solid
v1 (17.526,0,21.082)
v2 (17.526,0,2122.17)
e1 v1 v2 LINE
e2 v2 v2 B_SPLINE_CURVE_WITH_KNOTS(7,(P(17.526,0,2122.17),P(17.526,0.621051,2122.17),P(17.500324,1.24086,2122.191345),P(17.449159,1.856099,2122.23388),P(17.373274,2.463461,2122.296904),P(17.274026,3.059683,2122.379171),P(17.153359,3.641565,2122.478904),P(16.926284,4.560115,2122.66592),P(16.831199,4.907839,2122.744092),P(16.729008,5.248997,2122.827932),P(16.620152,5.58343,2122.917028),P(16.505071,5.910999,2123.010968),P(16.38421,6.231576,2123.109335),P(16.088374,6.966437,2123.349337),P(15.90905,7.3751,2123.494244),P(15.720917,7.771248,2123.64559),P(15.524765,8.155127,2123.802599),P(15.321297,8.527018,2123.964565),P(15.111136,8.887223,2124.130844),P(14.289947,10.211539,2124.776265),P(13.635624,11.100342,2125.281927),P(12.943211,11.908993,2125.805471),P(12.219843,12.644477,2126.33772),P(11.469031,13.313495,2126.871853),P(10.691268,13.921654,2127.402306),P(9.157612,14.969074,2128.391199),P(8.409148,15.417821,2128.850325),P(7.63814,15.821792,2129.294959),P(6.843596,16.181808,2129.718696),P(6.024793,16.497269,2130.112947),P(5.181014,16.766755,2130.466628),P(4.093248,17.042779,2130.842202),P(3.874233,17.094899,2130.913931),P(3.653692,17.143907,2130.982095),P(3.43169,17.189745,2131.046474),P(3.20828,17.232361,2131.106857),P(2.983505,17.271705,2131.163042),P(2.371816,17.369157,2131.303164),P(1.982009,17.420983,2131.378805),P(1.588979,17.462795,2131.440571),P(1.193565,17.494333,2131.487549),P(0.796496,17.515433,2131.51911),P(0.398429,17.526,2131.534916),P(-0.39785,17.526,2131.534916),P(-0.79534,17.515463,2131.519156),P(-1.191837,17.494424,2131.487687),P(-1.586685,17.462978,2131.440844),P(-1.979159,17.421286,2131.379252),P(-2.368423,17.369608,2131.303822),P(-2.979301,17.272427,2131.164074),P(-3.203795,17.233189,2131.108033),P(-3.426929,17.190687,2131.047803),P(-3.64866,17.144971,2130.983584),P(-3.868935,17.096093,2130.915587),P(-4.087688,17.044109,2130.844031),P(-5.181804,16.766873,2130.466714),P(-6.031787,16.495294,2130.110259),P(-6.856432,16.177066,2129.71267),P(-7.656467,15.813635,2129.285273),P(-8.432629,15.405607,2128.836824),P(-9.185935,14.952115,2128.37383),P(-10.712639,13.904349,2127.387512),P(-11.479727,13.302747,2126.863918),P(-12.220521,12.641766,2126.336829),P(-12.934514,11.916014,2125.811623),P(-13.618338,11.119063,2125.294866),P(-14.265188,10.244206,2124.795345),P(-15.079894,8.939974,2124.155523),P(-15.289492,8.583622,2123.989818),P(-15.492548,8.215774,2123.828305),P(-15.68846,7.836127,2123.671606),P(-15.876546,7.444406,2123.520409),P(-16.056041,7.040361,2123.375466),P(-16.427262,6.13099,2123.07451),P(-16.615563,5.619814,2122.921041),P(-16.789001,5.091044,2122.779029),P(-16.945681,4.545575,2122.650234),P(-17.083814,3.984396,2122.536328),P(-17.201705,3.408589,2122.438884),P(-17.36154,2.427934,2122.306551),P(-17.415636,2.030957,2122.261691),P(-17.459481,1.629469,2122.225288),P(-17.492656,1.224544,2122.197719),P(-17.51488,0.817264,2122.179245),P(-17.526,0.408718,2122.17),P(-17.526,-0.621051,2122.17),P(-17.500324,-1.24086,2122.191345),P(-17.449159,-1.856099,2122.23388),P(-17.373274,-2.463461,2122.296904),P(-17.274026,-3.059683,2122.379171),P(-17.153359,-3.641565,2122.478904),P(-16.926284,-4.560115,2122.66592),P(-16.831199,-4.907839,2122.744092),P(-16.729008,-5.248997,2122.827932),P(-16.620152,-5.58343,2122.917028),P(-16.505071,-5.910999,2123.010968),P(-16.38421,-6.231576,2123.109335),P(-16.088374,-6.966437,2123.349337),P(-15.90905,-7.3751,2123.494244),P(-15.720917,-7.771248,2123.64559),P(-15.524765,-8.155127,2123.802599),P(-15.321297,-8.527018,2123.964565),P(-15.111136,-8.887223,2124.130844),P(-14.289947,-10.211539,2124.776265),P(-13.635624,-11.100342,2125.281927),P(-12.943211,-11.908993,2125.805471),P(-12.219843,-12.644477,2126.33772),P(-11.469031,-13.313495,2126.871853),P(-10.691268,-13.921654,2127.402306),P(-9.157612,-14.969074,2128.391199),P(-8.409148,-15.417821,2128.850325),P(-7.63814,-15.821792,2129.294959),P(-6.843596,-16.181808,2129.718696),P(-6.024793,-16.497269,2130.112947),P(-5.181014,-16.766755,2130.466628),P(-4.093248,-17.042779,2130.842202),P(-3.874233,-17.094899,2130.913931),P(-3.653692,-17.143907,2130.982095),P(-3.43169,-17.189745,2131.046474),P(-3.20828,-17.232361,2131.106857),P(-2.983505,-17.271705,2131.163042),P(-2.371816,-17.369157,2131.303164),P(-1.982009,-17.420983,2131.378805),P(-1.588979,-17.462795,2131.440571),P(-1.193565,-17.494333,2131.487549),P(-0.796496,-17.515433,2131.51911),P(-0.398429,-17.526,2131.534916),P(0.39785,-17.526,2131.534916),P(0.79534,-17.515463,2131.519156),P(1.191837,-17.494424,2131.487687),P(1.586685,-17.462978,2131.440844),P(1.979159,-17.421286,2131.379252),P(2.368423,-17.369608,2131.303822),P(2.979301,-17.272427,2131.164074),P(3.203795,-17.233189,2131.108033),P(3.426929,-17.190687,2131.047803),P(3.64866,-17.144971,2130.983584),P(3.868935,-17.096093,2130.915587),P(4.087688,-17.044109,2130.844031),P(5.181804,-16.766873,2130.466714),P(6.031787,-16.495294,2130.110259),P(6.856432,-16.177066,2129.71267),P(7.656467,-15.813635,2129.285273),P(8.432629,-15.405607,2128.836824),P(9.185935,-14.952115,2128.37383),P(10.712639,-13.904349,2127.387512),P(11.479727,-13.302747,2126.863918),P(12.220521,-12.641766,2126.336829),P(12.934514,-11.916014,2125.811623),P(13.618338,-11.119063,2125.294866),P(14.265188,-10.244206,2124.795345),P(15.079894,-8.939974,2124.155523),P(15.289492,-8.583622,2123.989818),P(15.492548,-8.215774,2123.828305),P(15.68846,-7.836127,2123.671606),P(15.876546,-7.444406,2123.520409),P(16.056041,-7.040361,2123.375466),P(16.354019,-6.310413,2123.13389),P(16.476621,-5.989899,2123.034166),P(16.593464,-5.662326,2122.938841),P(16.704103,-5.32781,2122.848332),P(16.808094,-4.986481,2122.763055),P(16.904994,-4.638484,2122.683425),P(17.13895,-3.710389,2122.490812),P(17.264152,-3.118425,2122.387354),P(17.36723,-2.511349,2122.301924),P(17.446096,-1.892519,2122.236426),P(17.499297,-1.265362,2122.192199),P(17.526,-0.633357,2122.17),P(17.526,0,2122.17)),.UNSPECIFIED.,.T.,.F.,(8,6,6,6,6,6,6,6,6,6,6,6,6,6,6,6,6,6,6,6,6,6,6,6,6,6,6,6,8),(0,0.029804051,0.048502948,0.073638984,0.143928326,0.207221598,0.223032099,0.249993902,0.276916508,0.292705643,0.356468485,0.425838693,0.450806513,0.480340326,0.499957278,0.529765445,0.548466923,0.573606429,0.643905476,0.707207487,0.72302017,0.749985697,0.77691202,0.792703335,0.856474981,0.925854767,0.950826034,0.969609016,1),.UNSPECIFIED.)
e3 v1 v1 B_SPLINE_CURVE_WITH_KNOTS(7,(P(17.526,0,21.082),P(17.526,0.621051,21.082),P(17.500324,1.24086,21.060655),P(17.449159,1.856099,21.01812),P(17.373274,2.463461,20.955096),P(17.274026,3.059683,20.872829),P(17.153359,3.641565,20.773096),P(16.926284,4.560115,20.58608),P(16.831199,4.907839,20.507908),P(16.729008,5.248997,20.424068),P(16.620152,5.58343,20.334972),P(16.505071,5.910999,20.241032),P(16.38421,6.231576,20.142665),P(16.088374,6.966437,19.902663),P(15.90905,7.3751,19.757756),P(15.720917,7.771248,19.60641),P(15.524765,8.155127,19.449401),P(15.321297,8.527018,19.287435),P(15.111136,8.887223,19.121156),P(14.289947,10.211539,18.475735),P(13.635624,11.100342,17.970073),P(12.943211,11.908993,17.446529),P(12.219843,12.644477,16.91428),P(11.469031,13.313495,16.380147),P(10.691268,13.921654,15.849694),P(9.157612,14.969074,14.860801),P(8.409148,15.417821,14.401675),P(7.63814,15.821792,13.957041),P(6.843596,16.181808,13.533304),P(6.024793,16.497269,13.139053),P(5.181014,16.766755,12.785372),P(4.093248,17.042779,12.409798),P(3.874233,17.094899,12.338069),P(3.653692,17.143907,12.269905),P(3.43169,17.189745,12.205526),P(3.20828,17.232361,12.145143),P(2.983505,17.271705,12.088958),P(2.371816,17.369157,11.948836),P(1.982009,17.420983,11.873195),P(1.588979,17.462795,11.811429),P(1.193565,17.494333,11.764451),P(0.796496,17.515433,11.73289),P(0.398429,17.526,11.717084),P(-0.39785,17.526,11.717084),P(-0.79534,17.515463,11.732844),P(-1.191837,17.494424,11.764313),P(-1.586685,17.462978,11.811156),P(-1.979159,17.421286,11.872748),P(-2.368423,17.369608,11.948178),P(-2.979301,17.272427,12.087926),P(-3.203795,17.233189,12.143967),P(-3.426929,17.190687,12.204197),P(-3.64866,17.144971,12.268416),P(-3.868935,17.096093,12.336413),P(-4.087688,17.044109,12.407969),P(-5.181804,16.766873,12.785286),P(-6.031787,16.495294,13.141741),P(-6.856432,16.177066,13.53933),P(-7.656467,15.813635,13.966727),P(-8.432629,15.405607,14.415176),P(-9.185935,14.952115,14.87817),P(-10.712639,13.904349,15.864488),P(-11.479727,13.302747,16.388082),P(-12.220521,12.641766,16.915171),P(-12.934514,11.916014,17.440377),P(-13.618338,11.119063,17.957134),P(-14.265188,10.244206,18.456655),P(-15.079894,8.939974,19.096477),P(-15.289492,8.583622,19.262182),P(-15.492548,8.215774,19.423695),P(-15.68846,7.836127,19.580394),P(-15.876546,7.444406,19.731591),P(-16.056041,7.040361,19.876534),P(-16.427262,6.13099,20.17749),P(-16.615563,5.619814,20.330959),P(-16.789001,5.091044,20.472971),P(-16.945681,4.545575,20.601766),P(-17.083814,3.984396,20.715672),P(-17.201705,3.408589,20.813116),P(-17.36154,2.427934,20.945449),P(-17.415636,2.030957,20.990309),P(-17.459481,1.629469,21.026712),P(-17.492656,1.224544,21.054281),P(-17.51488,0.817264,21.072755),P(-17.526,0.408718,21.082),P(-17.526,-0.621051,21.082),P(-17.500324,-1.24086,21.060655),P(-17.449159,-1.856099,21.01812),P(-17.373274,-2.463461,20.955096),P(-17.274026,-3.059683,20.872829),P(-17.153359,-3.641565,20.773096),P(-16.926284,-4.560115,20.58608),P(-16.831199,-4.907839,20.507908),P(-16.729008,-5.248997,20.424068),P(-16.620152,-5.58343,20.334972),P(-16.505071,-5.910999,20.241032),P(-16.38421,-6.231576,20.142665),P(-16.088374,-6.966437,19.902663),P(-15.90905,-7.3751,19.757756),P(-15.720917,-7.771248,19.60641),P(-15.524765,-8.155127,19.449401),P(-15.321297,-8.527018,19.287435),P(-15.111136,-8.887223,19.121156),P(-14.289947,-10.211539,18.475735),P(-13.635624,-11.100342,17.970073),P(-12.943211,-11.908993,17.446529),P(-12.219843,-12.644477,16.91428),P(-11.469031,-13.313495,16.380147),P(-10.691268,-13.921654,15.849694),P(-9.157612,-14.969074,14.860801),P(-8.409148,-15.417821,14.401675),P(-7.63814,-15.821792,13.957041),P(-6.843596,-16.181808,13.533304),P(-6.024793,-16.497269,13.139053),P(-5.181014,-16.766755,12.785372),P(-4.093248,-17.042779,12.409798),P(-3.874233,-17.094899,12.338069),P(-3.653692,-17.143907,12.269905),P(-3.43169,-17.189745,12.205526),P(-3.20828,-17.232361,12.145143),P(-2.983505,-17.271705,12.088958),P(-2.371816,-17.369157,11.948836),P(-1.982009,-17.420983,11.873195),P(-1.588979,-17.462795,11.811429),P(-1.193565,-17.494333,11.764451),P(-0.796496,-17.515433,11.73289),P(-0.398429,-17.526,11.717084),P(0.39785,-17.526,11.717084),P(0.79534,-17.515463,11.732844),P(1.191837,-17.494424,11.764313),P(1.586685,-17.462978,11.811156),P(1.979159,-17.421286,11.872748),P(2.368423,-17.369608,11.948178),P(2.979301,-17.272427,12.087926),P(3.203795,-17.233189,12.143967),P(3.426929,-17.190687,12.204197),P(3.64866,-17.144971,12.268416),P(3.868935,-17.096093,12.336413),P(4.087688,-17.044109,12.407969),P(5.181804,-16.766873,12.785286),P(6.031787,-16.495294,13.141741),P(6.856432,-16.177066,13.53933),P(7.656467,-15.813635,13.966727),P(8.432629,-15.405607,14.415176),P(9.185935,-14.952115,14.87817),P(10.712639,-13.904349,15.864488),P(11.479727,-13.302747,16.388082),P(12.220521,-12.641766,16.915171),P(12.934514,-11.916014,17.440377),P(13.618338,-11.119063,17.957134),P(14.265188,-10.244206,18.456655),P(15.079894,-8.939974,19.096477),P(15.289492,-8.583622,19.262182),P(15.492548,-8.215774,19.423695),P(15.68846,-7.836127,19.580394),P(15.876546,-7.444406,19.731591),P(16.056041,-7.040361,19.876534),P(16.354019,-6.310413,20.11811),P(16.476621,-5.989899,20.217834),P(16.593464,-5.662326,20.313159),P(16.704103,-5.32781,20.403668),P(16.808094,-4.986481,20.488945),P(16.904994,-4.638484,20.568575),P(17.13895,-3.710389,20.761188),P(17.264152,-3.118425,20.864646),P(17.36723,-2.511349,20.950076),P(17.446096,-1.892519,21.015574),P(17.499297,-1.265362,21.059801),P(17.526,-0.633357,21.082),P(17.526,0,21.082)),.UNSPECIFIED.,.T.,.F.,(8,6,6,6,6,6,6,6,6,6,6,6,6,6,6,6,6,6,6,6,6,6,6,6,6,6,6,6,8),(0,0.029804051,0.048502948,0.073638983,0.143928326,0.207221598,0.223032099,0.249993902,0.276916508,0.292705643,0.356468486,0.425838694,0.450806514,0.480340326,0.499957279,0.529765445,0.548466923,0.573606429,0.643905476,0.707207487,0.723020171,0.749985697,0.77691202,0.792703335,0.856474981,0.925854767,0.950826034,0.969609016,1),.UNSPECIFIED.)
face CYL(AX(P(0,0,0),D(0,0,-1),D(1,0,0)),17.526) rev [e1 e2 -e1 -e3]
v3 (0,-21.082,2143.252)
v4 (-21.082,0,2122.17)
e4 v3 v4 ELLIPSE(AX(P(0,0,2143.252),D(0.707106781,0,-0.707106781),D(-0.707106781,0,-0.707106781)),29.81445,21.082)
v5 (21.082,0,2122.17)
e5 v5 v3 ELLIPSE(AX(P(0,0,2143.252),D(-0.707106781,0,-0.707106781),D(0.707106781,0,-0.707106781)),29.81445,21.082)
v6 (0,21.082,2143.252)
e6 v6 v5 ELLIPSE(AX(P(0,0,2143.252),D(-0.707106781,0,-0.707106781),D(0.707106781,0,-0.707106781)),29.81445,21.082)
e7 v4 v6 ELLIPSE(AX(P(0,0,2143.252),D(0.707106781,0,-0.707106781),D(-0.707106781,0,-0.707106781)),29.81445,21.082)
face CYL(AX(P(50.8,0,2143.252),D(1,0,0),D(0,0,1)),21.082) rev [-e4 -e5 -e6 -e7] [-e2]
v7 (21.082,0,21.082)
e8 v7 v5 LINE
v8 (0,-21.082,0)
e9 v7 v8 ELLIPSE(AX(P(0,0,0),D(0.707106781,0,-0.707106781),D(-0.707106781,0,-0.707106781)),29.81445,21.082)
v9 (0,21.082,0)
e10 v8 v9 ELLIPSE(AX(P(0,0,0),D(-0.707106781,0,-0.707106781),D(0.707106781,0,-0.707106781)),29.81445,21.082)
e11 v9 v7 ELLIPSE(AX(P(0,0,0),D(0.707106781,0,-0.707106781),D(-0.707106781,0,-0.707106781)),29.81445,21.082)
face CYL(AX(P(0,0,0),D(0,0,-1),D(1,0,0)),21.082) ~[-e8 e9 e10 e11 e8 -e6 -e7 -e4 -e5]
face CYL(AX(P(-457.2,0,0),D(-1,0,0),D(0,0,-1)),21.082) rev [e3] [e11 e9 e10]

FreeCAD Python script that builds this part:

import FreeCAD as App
import Part
import Sketcher
Q = App.Units.Quantity

doc = App.newDocument("Part")
body = doc.addObject("PartDesign::Body", "Body")

# Sketch on XY plane
sketch1 = body.newObject("Sketcher::SketchObject", "Sketch")
sketch1.AttachmentSupport = (doc.getObject("XY_Plane"), [""])
sketch1.MapMode = "FlatFace"
sketch1.addGeometry(Part.Circle(App.Vector(0, 0, 0), App.Vector(0, 0, 1), 21), False)
sketch1.addGeometry(Part.Circle(App.Vector(0, 0, 0), App.Vector(0, 0, 1), 18), False)
sketch1.addConstraint(Sketcher.Constraint("Coincident", 0, 3, -1, 1))
sketch1.addConstraint(Sketcher.Constraint("Coincident", 1, 3, -1, 1))
sketch1.addConstraint(Sketcher.Constraint("Diameter", 0, Q("1.66 in")))
sketch1.addConstraint(Sketcher.Constraint("Diameter", 1, Q("1.38 in")))
pad1 = body.newObject("PartDesign::Pad", "Pad")
pad1.Profile = sketch1
pad1.Length = Q("84.38 in")

# Sketch on YZ plane
sketch2 = body.newObject("Sketcher::SketchObject", "Sketch001")
sketch2.AttachmentSupport = (doc.getObject("YZ_Plane"), [""])
sketch2.MapMode = "FlatFace"
sketch2.AttachmentOffset = App.Placement(App.Vector(0, 0, -18 * 25.4), App.Rotation())
sketch2.addGeometry(Part.Circle(App.Vector(0, 0, 0), App.Vector(0, 0, 1), 21), False)
sketch2.addConstraint(Sketcher.Constraint("Coincident", 0, 3, -1, 1))
sketch2.addConstraint(Sketcher.Constraint("Diameter", 0, Q("1.66 in")))
pocket1 = body.newObject("PartDesign::Pocket", "Pocket")
pocket1.Profile = sketch2
pocket1.Length = Q("20 in")
pocket1.Reversed = True

# Sketch on YZ plane
sketch3 = body.newObject("Sketcher::SketchObject", "Sketch002")
sketch3.AttachmentSupport = (doc.getObject("YZ_Plane"), [""])
sketch3.MapMode = "FlatFace"
sketch3.AttachmentOffset = App.Placement(App.Vector(0, 0, 2 * 25.4), App.Rotation())
sketch3.addGeometry(Part.Circle(App.Vector(0, 2143, 0), App.Vector(0, 0, 1), 21), False)
sketch3.addConstraint(Sketcher.Constraint("PointOnObject", 0, 3, -2))
sketch3.addConstraint(Sketcher.Constraint("Diameter", 0, Q("1.66 in")))
sketch3.addConstraint(Sketcher.Constraint("DistanceY", -1, 1, 0, 3, Q("84.38 in")))
pocket2 = body.newObject("PartDesign::Pocket", "Pocket001")
pocket2.Profile = sketch3
pocket2.Length = Q("20 in")

doc.recompute()
